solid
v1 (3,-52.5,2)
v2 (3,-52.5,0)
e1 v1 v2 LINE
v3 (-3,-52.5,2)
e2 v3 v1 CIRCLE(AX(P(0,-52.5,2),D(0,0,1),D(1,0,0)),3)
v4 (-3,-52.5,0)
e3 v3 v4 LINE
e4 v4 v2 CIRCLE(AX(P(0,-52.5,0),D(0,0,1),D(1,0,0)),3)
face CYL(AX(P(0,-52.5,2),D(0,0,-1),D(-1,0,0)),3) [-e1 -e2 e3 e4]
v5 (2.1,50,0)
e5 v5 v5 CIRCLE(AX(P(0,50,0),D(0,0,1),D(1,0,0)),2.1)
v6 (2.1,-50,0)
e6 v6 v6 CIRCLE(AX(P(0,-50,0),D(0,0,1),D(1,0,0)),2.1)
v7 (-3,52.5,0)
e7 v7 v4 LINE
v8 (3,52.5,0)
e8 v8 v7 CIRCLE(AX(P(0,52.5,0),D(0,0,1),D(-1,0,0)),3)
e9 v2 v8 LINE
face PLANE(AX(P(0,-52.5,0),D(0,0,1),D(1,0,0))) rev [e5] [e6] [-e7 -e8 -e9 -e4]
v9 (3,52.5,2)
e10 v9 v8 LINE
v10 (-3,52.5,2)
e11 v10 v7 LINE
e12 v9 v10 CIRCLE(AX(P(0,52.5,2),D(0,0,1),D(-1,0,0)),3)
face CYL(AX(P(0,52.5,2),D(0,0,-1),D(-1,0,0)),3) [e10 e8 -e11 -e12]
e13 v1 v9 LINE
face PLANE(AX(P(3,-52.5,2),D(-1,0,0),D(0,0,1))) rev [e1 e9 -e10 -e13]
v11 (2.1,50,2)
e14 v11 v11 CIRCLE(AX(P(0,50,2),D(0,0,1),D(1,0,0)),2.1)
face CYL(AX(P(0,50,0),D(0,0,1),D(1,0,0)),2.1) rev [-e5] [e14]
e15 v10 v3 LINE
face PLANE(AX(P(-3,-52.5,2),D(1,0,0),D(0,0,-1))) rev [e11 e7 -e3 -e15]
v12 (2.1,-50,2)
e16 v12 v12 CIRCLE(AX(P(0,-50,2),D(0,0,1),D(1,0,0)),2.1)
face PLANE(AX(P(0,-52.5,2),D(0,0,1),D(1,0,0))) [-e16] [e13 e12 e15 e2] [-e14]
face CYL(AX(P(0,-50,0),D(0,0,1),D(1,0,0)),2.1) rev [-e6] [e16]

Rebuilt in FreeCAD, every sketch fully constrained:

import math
import FreeCAD as App
import Part
import Sketcher
from FreeCAD import Vector

doc = App.newDocument("Part")
body = doc.addObject("PartDesign::Body", "Body")

# Sketch on XY plane
sketch1 = body.newObject("Sketcher::SketchObject", "Sketch")
sketch1.AttachmentSupport = (doc.getObject("XY_Plane"), [""])
sketch1.MapMode = "FlatFace"
sketch1.addGeometry([
    Part.LineSegment(Vector(-3, 52.5, 0), Vector(-3, -52.5, 0)),
    Part.ArcOfCircle(Part.Circle(Vector(0, -52.5, 0), Vector(0, 0, 1), 3), math.radians(180), math.radians(360)),
    Part.LineSegment(Vector(3, -52.5, 0), Vector(3, 52.5, 0)),
    Part.ArcOfCircle(Part.Circle(Vector(0, 52.5, 0), Vector(0, 0, 1), 3), math.radians(0), math.radians(180)),
], False)
sketch1.addConstraint([
    Sketcher.Constraint("Tangent", 0, 2, 1, 1),
    Sketcher.Constraint("Tangent", 1, 2, 2, 1),
    Sketcher.Constraint("Tangent", 2, 2, 3, 1),
    Sketcher.Constraint("Tangent", 3, 2, 0, 1),
    Sketcher.Constraint("Vertical", 0),
    Sketcher.Constraint("Vertical", 2),
    Sketcher.Constraint("Symmetric", 1, 3, 3, 3, -1, 1),
    Sketcher.Constraint("Radius", 1, 3.0),
    Sketcher.Constraint("DistanceY", 0, 2, 0, 1, 105.0),
])
pad1 = body.newObject("PartDesign::Pad", "Pad")
pad1.Profile = sketch1
pad1.Length = 2

# Sketch on XY plane
sketch2 = body.newObject("Sketcher::SketchObject", "Sketch001")
sketch2.AttachmentSupport = (doc.getObject("XY_Plane"), [""])
sketch2.MapMode = "FlatFace"
sketch2.AttachmentOffset = App.Placement(Vector(0, 0, 2), App.Rotation())
sketch2.addGeometry([
    Part.Circle(Vector(0, 50, 0), Vector(0, 0, 1), 2.1),
    Part.Circle(Vector(0, -50, 0), Vector(0, 0, 1), 2.1),
], False)
sketch2.addConstraint([
    Sketcher.Constraint("Equal", 0, 1),
    Sketcher.Constraint("Symmetric", 0, 3, 1, 3, -1, 1),
    Sketcher.Constraint("PointOnObject", 0, 3, -2),
    Sketcher.Constraint("Diameter", 0, 4.2),
    Sketcher.Constraint("DistanceY", -1, 1, 0, 3, 50.0),
])
pocket1 = body.newObject("PartDesign::Pocket", "Pocket")
pocket1.Profile = sketch2
pocket1.Type = "ThroughAll"

doc.recompute()
